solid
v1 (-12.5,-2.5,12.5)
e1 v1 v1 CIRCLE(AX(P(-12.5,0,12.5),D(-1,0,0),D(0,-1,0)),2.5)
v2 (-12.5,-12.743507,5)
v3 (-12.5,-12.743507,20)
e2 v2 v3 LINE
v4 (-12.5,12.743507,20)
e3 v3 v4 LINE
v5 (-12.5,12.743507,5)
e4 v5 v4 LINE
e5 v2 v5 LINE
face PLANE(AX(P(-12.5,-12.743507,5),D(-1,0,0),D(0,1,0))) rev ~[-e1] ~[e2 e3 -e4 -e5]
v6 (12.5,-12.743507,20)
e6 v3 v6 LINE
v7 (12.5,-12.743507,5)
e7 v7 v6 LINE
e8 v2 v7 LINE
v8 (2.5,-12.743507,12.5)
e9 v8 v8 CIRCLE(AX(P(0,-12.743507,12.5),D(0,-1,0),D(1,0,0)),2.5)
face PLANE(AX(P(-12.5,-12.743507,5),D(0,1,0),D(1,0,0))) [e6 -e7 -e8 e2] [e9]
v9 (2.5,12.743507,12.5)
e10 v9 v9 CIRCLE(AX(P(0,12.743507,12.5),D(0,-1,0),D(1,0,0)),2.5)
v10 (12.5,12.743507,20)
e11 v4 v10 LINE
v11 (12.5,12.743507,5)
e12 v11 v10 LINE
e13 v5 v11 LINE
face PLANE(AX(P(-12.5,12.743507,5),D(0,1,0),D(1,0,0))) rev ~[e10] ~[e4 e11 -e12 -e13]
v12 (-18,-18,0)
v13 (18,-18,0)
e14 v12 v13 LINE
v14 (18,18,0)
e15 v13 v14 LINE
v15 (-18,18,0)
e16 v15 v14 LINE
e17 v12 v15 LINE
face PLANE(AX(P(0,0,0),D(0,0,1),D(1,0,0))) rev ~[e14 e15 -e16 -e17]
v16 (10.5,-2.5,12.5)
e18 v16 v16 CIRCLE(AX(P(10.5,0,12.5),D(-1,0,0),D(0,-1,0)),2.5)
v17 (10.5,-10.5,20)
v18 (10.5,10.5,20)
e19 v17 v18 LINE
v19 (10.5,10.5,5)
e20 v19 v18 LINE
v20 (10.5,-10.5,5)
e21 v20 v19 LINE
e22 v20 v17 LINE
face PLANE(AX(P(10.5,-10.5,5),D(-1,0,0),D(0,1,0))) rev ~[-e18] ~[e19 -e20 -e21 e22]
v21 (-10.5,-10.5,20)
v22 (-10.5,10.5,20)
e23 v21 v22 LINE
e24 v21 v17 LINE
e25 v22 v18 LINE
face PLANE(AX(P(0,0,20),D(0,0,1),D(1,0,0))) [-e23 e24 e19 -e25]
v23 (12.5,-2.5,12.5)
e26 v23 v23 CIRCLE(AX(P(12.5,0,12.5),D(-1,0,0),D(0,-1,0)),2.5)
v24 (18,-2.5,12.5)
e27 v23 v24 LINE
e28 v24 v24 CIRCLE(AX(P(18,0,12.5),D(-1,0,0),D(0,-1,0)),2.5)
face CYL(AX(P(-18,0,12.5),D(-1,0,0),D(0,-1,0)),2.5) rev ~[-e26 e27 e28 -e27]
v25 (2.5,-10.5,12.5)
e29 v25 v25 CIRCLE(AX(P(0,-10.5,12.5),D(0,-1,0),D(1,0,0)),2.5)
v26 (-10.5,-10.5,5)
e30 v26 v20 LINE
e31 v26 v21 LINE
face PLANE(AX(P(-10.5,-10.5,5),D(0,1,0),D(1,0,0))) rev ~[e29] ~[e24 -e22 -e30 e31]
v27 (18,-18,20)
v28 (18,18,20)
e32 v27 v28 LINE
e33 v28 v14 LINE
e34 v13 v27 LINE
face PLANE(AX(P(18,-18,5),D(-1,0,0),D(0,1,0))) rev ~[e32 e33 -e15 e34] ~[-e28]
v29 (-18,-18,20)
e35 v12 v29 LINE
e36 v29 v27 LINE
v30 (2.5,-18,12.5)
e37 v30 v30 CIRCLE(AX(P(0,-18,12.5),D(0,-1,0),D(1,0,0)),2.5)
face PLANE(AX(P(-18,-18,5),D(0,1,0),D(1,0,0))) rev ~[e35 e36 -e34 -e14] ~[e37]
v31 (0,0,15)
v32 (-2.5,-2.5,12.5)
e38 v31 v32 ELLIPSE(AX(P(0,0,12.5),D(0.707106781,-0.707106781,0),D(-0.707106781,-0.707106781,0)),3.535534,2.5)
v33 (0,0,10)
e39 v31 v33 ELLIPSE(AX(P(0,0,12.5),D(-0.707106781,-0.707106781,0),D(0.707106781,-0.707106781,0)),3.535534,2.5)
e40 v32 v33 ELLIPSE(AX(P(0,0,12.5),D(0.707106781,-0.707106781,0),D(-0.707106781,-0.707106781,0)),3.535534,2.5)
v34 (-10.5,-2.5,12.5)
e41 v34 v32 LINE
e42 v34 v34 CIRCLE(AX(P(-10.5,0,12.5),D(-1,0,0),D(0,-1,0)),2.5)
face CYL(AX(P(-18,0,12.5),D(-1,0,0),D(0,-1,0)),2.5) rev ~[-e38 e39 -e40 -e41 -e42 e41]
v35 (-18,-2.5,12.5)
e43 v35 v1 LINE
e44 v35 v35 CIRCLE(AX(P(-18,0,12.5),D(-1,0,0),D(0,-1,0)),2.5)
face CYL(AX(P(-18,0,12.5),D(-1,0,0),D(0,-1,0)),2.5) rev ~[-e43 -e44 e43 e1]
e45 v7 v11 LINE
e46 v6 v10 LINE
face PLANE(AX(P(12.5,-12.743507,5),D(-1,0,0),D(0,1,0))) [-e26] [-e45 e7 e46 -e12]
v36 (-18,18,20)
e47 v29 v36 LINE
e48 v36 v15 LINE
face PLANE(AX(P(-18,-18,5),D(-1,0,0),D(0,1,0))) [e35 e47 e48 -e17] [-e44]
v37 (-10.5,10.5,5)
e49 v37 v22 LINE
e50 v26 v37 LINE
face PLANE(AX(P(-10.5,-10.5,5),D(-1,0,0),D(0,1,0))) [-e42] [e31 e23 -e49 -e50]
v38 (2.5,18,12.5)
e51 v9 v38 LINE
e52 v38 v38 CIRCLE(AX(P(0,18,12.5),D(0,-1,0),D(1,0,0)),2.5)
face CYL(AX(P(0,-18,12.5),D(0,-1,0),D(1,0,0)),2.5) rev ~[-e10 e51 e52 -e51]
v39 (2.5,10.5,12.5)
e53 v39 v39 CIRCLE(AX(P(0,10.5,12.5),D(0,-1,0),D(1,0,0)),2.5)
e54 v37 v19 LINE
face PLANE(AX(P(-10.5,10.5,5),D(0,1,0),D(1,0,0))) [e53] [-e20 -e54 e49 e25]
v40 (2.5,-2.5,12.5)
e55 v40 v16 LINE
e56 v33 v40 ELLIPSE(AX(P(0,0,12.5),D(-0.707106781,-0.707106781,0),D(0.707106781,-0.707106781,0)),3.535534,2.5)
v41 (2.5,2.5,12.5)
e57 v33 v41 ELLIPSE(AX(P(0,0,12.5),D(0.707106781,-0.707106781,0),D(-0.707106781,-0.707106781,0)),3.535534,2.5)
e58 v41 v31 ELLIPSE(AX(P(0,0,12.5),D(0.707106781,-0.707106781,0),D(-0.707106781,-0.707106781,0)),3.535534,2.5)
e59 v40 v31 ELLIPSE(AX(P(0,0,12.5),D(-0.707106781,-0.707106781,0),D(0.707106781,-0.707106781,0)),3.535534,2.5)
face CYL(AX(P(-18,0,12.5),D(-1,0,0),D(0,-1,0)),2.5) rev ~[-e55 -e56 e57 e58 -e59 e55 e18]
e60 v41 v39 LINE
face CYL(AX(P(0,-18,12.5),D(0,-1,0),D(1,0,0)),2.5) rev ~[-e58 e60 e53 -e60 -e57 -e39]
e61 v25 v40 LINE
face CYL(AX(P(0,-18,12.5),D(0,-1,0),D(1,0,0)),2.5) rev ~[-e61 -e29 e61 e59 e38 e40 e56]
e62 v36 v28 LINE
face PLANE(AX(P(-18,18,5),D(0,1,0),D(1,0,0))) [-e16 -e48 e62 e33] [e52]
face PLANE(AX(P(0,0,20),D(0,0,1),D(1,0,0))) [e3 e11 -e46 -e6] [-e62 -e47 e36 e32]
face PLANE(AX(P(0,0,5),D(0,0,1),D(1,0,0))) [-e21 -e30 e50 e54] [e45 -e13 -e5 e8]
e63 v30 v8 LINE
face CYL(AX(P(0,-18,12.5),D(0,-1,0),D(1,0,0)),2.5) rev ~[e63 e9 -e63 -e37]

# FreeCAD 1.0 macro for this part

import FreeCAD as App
import Part
import Sketcher

doc = App.newDocument("Part")
params = doc.addObject("Spreadsheet::Sheet", "Params")
for row, (alias, value) in enumerate([
    ("sketch1_width", "36 mm"),
    ("pad1_length", "5 mm"),
    ("sketch2_width", "21 mm"),
    ("pad2_length", "15 mm"),
    ("sketch3_width", "36 mm"),
    ("sketch3_width2", "25 mm"),
    ("pad3_length", "15 mm"),
    ("sketch4_diameter", "5 mm"),
    ("pocket1_length", "40 mm"),
    ("sketch5_diameter", "5 mm"),
    ("pocket2_length", "40 mm"),
], start=1):
    params.set(f"A{row}", alias)
    params.set(f"B{row}", "=" + value)
    params.setAlias(f"B{row}", alias)

body = doc.addObject("PartDesign::Body", "Body")

# Sketch on XY plane
sketch1 = body.newObject("Sketcher::SketchObject", "Sketch")
sketch1.AttachmentSupport = (doc.getObject("XY_Plane"), [""])
sketch1.MapMode = "FlatFace"
sketch1.addGeometry([
    Part.LineSegment(App.Vector(-18, 18, 0), App.Vector(-18, -18, 0)),
    Part.LineSegment(App.Vector(-18, -18, 0), App.Vector(18, -18, 0)),
    Part.LineSegment(App.Vector(18, -18, 0), App.Vector(18, 18, 0)),
    Part.LineSegment(App.Vector(18, 18, 0), App.Vector(-18, 18, 0)),
], False)
sketch1.addConstraint([
    Sketcher.Constraint("Coincident", 0, 2, 1, 1),
    Sketcher.Constraint("Coincident", 1, 2, 2, 1),
    Sketcher.Constraint("Coincident", 2, 2, 3, 1),
    Sketcher.Constraint("Coincident", 3, 2, 0, 1),
    Sketcher.Constraint("Vertical", 0),
    Sketcher.Constraint("Horizontal", 1),
    Sketcher.Constraint("Vertical", 2),
    Sketcher.Constraint("Horizontal", 3),
    Sketcher.Constraint("Symmetric", 0, 2, 2, 2, -1, 1),
    Sketcher.Constraint("Equal", 3, 0),
    Sketcher.Constraint("DistanceX", 1, 1, 1, 2, 36.0),
])
sketch1.setExpression("Constraints[10]", "Params.sketch1_width")
pad1 = body.newObject("PartDesign::Pad", "Pad")
pad1.Profile = sketch1
pad1.setExpression("Length", "Params.pad1_length")

# Sketch on XY plane
sketch2 = body.newObject("Sketcher::SketchObject", "Sketch001")
sketch2.AttachmentSupport = (doc.getObject("XY_Plane"), [""])
sketch2.MapMode = "FlatFace"
sketch2.AttachmentOffset = App.Placement(App.Vector(0, 0, 5), App.Rotation())
sketch2.addGeometry([
    Part.LineSegment(App.Vector(-10, 10, 0), App.Vector(-10, -10, 0)),
    Part.LineSegment(App.Vector(-10, -10, 0), App.Vector(10, -10, 0)),
    Part.LineSegment(App.Vector(10, -10, 0), App.Vector(10, 10, 0)),
    Part.LineSegment(App.Vector(10, 10, 0), App.Vector(-10, 10, 0)),
], False)
sketch2.addConstraint([
    Sketcher.Constraint("Coincident", 0, 2, 1, 1),
    Sketcher.Constraint("Coincident", 1, 2, 2, 1),
    Sketcher.Constraint("Coincident", 2, 2, 3, 1),
    Sketcher.Constraint("Coincident", 3, 2, 0, 1),
    Sketcher.Constraint("Vertical", 0),
    Sketcher.Constraint("Horizontal", 1),
    Sketcher.Constraint("Vertical", 2),
    Sketcher.Constraint("Horizontal", 3),
    Sketcher.Constraint("Symmetric", 0, 2, 2, 2, -1, 1),
    Sketcher.Constraint("Equal", 3, 0),
    Sketcher.Constraint("DistanceX", 1, 1, 1, 2, 21.0),
])
sketch2.setExpression("Constraints[10]", "Params.sketch2_width")
pad2 = body.newObject("PartDesign::Pad", "Pad001")
pad2.Profile = sketch2
pad2.setExpression("Length", "Params.pad2_length")

# Sketch on XY plane
sketch3 = body.newObject("Sketcher::SketchObject", "Sketch002")
sketch3.AttachmentSupport = (doc.getObject("XY_Plane"), [""])
sketch3.MapMode = "FlatFace"
sketch3.AttachmentOffset = App.Placement(App.Vector(0, 0, 5), App.Rotation())
sketch3.addGeometry([
    Part.LineSegment(App.Vector(-18, 18, 0), App.Vector(-18, -18, 0)),  # 0
    Part.LineSegment(App.Vector(-18, -18, 0), App.Vector(18, -18, 0)),  # 1
    Part.LineSegment(App.Vector(18, -18, 0), App.Vector(18, 18, 0)),  # 2
    Part.LineSegment(App.Vector(18, 18, 0), App.Vector(-18, 18, 0)),  # 3
    Part.LineSegment(App.Vector(12, -13, 0), App.Vector(-12, -13, 0)),  # 4
    Part.LineSegment(App.Vector(-12, -13, 0), App.Vector(-12, 13, 0)),  # 5
    Part.LineSegment(App.Vector(-12, 13, 0), App.Vector(12, 13, 0)),  # 6
    Part.LineSegment(App.Vector(12, 13, 0), App.Vector(12, -13, 0)),  # 7
], False)
sketch3.addConstraint([
    Sketcher.Constraint("Coincident", 0, 2, 1, 1),
    Sketcher.Constraint("Coincident", 1, 2, 2, 1),
    Sketcher.Constraint("Coincident", 2, 2, 3, 1),
    Sketcher.Constraint("Coincident", 3, 2, 0, 1),
    Sketcher.Constraint("Coincident", 4, 2, 5, 1),
    Sketcher.Constraint("Coincident", 5, 2, 6, 1),
    Sketcher.Constraint("Coincident", 6, 2, 7, 1),
    Sketcher.Constraint("Coincident", 7, 2, 4, 1),
    Sketcher.Constraint("Vertical", 0),
    Sketcher.Constraint("Horizontal", 1),
    Sketcher.Constraint("Vertical", 2),
    Sketcher.Constraint("Horizontal", 3),
    Sketcher.Constraint("Horizontal", 4),
    Sketcher.Constraint("Vertical", 5),
    Sketcher.Constraint("Horizontal", 6),
    Sketcher.Constraint("Vertical", 7),
    Sketcher.Constraint("Symmetric", 0, 2, 2, 2, -1, 1),
    Sketcher.Constraint("Symmetric", 4, 2, 6, 2, -1, 1),
    Sketcher.Constraint("Equal", 3, 0),
    Sketcher.Constraint("DistanceX", 1, 1, 1, 2, 36.0),
    Sketcher.Constraint("DistanceX", 4, 2, 4, 1, 25.0),
    Sketcher.Constraint("DistanceY", 5, 1, 5, 2, 25.487014),
])
sketch3.setExpression("Constraints[19]", "Params.sketch3_width")
sketch3.setExpression("Constraints[20]", "Params.sketch3_width2")
pad3 = body.newObject("PartDesign::Pad", "Pad002")
pad3.Profile = sketch3
pad3.setExpression("Length", "Params.pad3_length")

# Sketch on XZ plane
sketch4 = body.newObject("Sketcher::SketchObject", "Sketch003")
sketch4.AttachmentSupport = (doc.getObject("XZ_Plane"), [""])
sketch4.MapMode = "FlatFace"
sketch4.AttachmentOffset = App.Placement(App.Vector(0, 0, 18), App.Rotation())
sketch4.addGeometry(Part.Circle(App.Vector(0, 12.5, 0), App.Vector(0, 0, 1), 2.5), False)
sketch4.addConstraint([
    Sketcher.Constraint("PointOnObject", 0, 3, -2),
    Sketcher.Constraint("Diameter", 0, 5.0),
    Sketcher.Constraint("DistanceY", -1, 1, 0, 3, 12.5),
])
sketch4.setExpression("Constraints[1]", "Params.sketch4_diameter")
pocket1 = body.newObject("PartDesign::Pocket", "Pocket")
pocket1.Profile = sketch4
pocket1.setExpression("Length", "Params.pocket1_length")

# Sketch on YZ plane
sketch5 = body.newObject("Sketcher::SketchObject", "Sketch004")
sketch5.AttachmentSupport = (doc.getObject("YZ_Plane"), [""])
sketch5.MapMode = "FlatFace"
sketch5.AttachmentOffset = App.Placement(App.Vector(0, 0, -18), App.Rotation())
sketch5.addGeometry(Part.Circle(App.Vector(0, 12.5, 0), App.Vector(0, 0, 1), 2.5), False)
sketch5.addConstraint([
    Sketcher.Constraint("PointOnObject", 0, 3, -2),
    Sketcher.Constraint("Diameter", 0, 5.0),
    Sketcher.Constraint("DistanceY", -1, 1, 0, 3, 12.5),
])
sketch5.setExpression("Constraints[1]", "Params.sketch5_diameter")
pocket2 = body.newObject("PartDesign::Pocket", "Pocket001")
pocket2.Profile = sketch5
pocket2.setExpression("Length", "Params.pocket2_length")
pocket2.Reversed = True

doc.recompute()
